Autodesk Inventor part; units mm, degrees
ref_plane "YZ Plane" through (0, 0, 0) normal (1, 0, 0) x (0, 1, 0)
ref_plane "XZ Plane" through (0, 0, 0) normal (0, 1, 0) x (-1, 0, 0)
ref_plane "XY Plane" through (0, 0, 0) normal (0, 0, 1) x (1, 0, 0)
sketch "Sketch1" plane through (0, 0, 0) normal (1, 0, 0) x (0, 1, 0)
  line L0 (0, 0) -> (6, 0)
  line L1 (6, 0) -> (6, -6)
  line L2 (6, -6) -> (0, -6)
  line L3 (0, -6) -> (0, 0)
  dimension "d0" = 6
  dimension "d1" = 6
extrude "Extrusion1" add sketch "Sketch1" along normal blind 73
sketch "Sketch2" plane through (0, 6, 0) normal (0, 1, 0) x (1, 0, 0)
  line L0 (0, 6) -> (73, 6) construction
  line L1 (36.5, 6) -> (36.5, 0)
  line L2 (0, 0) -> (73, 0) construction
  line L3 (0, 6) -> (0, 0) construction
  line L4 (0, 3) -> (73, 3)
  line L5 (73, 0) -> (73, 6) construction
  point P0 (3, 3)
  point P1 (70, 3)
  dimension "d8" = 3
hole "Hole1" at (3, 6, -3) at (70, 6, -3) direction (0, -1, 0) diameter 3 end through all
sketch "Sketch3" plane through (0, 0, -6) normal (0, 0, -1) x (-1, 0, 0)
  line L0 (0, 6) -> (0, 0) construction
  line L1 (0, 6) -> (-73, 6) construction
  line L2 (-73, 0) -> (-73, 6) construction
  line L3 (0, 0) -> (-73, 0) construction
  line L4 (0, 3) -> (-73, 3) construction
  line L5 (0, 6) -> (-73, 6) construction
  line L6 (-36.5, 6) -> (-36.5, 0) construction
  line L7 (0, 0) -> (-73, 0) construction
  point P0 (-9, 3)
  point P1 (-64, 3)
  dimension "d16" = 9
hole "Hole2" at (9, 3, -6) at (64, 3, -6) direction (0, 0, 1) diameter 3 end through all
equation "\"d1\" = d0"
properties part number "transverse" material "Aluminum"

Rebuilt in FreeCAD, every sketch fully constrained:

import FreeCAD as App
import Part
import Sketcher

doc = App.newDocument("Part")
body = doc.addObject("PartDesign::Body", "Body")

sketch1 = body.newObject("Sketcher::SketchObject", "Sketch")
sketch1.AttachmentSupport = (doc.getObject("YZ_Plane"), [""])
sketch1.MapMode = "FlatFace"
sketch1.addGeometry([
    Part.LineSegment(App.Vector(6, 0, 0), App.Vector(0, 0, 0)),
    Part.LineSegment(App.Vector(0, 0, 0), App.Vector(0, -6, 0)),
    Part.LineSegment(App.Vector(0, -6, 0), App.Vector(6, -6, 0)),
    Part.LineSegment(App.Vector(6, -6, 0), App.Vector(6, 0, 0)),
], False)
sketch1.addConstraint([
    Sketcher.Constraint("Coincident", 0, 2, 1, 1),
    Sketcher.Constraint("Coincident", 1, 2, 2, 1),
    Sketcher.Constraint("Coincident", 2, 2, 3, 1),
    Sketcher.Constraint("Coincident", 3, 2, 0, 1),
    Sketcher.Constraint("Horizontal", 0),
    Sketcher.Constraint("Vertical", 1),
    Sketcher.Constraint("Horizontal", 2),
    Sketcher.Constraint("Vertical", 3),
    Sketcher.Constraint("Coincident", 0, 2, -1, 1),
    Sketcher.Constraint("Equal", 2, 1),
    Sketcher.Constraint("DistanceX", 0, 2, 0, 1, 6.0),
])
pad1 = body.newObject("PartDesign::Pad", "Pad")
pad1.Profile = sketch1
pad1.Length = 73

sketch2 = body.newObject("Sketcher::SketchObject", "Sketch001")
sketch2.AttachmentSupport = (doc.getObject("XZ_Plane"), [""])
sketch2.MapMode = "FlatFace"
sketch2.AttachmentOffset = App.Placement(App.Vector(0, 0, -6), App.Rotation())
sketch2.addGeometry([
    Part.Circle(App.Vector(3, -3, 0), App.Vector(0, 0, 1), 1.5),
    Part.Circle(App.Vector(70, -3, 0), App.Vector(0, 0, 1), 1.5),
], False)
sketch2.addConstraint([
    Sketcher.Constraint("Equal", 0, 1),
    Sketcher.Constraint("Horizontal", 0, 3, 1, 3),
    Sketcher.Constraint("Diameter", 0, 3.0),
    Sketcher.Constraint("DistanceX", -1, 1, 0, 3, 3.0),
    Sketcher.Constraint("DistanceY", 0, 3, -1, 1, 3.0),
    Sketcher.Constraint("DistanceX", -1, 1, 1, 3, 70.0),
])
doc.recompute()
hole = body.newObject("PartDesign::Hole", "Hole")
hole.Profile = sketch2
hole.ThreadType = "None"
hole.Diameter = 3
hole.DepthType = "ThroughAll"
hole.Reversed = True

sketch3 = body.newObject("Sketcher::SketchObject", "Sketch002")
sketch3.AttachmentSupport = (doc.getObject("XY_Plane"), [""])
sketch3.MapMode = "FlatFace"
sketch3.AttachmentOffset = App.Placement(App.Vector(0, 0, -6), App.Rotation())
sketch3.addGeometry([
    Part.Circle(App.Vector(9, 3, 0), App.Vector(0, 0, 1), 1.5),
    Part.Circle(App.Vector(64, 3, 0), App.Vector(0, 0, 1), 1.5),
], False)
sketch3.addConstraint([
    Sketcher.Constraint("Equal", 0, 1),
    Sketcher.Constraint("Horizontal", 0, 3, 1, 3),
    Sketcher.Constraint("Diameter", 0, 3.0),
    Sketcher.Constraint("DistanceX", -1, 1, 0, 3, 9.0),
    Sketcher.Constraint("DistanceY", -1, 1, 0, 3, 3.0),
    Sketcher.Constraint("DistanceX", -1, 1, 1, 3, 64.0),
])
doc.recompute()
hole2 = body.newObject("PartDesign::Hole", "Hole001")
hole2.Profile = sketch3
hole2.ThreadType = "None"
hole2.Diameter = 3
hole2.DepthType = "ThroughAll"
hole2.Reversed = True

doc.recompute()
